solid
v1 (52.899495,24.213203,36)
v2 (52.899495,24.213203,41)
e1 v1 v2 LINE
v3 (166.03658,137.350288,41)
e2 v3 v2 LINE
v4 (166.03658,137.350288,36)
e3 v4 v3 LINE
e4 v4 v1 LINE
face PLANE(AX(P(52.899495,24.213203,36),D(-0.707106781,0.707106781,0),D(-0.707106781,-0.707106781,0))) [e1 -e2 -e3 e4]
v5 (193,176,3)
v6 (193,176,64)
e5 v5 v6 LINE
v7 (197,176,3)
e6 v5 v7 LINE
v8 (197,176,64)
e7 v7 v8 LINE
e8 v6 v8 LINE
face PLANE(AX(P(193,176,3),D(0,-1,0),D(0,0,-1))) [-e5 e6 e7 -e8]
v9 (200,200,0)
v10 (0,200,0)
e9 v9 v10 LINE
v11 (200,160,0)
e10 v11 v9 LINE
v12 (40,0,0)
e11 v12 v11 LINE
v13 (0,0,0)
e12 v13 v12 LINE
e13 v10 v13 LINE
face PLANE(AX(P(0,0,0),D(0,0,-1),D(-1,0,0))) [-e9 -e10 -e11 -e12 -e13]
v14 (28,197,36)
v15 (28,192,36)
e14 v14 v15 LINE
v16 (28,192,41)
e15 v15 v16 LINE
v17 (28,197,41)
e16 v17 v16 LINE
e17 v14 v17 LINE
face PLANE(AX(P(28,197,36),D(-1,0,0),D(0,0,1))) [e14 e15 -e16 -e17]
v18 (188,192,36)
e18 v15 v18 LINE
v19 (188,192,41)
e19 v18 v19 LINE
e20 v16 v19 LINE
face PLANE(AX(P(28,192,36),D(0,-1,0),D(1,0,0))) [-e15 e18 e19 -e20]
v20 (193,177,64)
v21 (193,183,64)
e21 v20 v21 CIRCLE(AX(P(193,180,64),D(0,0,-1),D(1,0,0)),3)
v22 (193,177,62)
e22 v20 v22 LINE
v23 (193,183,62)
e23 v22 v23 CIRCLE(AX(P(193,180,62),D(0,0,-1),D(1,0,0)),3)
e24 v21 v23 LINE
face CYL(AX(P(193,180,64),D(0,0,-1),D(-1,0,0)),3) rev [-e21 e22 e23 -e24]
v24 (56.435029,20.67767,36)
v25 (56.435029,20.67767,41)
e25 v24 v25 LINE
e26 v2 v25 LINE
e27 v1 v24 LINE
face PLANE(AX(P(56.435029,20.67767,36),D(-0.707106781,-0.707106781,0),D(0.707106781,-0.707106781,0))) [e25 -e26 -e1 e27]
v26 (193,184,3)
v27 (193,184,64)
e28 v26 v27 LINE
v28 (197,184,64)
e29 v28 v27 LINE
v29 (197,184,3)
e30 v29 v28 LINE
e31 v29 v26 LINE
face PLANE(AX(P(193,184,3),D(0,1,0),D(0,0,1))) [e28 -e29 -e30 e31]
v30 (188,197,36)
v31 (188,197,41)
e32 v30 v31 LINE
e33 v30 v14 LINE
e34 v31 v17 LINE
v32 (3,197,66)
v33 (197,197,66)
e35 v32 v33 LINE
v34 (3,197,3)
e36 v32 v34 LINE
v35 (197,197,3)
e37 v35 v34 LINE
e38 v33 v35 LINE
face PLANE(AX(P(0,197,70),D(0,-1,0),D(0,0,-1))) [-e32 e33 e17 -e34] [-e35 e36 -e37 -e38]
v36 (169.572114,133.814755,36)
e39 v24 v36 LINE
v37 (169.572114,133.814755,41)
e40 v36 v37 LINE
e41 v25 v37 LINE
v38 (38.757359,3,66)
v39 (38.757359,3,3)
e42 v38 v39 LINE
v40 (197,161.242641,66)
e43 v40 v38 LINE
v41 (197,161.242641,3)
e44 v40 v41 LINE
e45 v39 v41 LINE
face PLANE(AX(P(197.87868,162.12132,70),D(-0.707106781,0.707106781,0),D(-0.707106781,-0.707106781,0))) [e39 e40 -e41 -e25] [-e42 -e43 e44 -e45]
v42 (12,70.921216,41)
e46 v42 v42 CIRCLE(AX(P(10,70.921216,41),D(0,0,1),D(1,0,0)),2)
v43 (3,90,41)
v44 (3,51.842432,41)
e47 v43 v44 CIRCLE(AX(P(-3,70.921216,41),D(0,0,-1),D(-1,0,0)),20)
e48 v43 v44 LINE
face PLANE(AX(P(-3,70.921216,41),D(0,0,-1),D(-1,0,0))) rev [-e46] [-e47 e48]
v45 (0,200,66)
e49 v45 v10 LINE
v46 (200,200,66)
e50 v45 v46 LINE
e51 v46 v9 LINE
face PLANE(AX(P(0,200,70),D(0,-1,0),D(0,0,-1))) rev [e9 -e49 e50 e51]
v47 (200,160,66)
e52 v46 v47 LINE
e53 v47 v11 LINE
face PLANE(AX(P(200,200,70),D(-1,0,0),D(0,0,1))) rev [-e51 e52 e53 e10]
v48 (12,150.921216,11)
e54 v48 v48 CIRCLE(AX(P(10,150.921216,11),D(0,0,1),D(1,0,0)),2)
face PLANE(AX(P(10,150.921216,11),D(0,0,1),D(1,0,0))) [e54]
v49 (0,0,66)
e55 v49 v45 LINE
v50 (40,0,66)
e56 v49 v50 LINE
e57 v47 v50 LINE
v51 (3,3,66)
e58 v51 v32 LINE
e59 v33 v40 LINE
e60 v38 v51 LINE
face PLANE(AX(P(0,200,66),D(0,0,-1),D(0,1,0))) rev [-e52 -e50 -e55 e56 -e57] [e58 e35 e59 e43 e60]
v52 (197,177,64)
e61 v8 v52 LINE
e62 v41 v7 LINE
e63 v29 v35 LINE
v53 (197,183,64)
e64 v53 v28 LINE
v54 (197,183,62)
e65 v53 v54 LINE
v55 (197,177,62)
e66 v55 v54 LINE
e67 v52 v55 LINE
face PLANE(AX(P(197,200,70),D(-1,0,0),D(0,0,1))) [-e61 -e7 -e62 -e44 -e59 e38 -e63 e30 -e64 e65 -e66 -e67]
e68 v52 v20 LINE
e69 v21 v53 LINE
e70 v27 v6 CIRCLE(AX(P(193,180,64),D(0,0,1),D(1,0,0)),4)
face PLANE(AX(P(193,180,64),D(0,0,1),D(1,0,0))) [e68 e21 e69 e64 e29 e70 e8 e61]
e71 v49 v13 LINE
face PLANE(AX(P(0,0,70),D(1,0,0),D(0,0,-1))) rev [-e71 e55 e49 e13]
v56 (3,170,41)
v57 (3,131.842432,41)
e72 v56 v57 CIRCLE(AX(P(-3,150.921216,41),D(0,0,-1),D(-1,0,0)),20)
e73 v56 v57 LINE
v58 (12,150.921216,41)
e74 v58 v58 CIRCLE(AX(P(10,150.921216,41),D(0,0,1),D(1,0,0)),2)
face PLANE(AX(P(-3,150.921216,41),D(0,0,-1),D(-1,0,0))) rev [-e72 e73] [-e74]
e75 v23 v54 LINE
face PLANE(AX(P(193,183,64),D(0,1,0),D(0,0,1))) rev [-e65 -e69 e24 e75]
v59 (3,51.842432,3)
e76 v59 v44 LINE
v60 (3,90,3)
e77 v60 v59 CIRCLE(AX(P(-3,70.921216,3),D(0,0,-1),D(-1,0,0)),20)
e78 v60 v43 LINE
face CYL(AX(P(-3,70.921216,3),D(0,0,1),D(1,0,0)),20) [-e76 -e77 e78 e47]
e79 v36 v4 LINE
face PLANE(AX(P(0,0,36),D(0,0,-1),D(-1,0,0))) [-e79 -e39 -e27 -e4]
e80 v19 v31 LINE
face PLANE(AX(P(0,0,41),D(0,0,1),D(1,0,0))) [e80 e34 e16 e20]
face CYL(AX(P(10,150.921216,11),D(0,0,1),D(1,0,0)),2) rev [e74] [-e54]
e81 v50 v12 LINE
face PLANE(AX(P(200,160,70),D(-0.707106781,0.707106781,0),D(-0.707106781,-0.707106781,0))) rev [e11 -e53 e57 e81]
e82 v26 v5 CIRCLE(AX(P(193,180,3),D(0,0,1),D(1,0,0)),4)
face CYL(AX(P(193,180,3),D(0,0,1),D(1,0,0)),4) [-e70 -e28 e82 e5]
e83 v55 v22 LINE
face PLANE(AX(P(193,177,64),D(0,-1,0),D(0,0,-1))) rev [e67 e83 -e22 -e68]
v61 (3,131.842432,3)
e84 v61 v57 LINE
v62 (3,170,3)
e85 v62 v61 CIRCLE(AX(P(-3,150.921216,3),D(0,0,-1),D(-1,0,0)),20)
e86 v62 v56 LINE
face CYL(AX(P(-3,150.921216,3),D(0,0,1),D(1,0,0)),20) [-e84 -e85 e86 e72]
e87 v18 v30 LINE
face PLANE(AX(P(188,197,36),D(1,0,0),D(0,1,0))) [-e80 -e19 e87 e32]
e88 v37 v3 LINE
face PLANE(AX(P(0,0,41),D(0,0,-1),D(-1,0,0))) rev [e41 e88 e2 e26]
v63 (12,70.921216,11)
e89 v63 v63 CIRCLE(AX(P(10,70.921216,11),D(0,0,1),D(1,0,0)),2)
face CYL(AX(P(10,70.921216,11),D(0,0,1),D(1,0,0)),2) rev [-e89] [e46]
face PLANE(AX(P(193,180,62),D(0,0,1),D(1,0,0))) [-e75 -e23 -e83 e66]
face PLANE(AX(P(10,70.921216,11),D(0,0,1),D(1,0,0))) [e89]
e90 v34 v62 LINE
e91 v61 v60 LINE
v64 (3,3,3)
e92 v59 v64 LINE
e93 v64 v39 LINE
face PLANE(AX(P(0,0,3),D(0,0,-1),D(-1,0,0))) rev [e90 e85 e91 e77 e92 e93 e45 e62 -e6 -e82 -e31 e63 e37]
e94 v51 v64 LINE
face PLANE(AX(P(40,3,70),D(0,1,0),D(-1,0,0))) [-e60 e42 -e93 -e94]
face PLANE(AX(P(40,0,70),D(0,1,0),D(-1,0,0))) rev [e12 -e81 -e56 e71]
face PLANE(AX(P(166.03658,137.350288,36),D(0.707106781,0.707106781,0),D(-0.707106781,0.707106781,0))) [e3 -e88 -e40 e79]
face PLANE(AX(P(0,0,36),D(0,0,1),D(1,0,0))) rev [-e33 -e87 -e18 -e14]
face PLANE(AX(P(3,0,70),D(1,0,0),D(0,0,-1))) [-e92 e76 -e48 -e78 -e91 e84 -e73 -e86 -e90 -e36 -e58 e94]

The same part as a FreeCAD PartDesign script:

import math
import FreeCAD as App
import Part
import Sketcher
Q = App.Units.Quantity


def faces_at(feature, points):
    """Names of the faces that lie closest to the given points."""
    faces = feature.Shape.Faces
    near = lambda p: min(range(len(faces)), key=lambda i: faces[i].distToShape(Part.Vertex(*p))[0])
    return sorted({f"Face{near(p) + 1}" for p in points})


def add_polygon(sketch, points):
    """Adds a closed chain of lines whose ends are joined by coincident constraints."""
    first, n = sketch.GeometryCount, len(points)
    for a, b in zip(points, points[1:] + points[:1]):
        sketch.addGeometry(Part.LineSegment(App.Vector(*a, 0), App.Vector(*b, 0)), False)
    for i in range(n):
        sketch.addConstraint(Sketcher.Constraint("Coincident", first + i, 2, first + (i + 1) % n, 1))

doc = App.newDocument("Part")
body = doc.addObject("PartDesign::Body", "Body")

sketch1 = doc.addObject("Sketcher::SketchObject", "Sketch")
body.addObject(sketch1)
sketch1.AttachmentSupport = (doc.XY_Plane, [""])
sketch1.MapMode = "FlatFace"
add_polygon(sketch1, [(0, 200), (0, 0), (40, 0), (200, 160), (200, 200)])
sketch1.addConstraint(Sketcher.Constraint("Vertical", 0))
sketch1.addConstraint(Sketcher.Constraint("Horizontal", 1))
sketch1.addConstraint(Sketcher.Constraint("Vertical", 3))
sketch1.addConstraint(Sketcher.Constraint("Horizontal", 4))
sketch1.addConstraint(Sketcher.Constraint("Coincident", 0, 2, -1, 1))
sketch1.addConstraint(Sketcher.Constraint("Equal", 4, 0))
sketch1.addConstraint(Sketcher.Constraint("Equal", 1, 3))
sketch1.addConstraint(Sketcher.Constraint("DistanceX", 1, 1, 1, 2, 40.0))
sketch1.addConstraint(Sketcher.Constraint("DistanceX", 4, 2, 4, 1, 200.0))
pad1 = doc.addObject("PartDesign::Pad", "Pad")
body.addObject(pad1)
pad1.Profile = sketch1
pad1.Length = 70
doc.recompute()

thickness = doc.addObject("PartDesign::Thickness", "Thickness")
body.addObject(thickness)
thickness.Base = (pad1, faces_at(pad1, [(100, 100, 70)]))
thickness.Value = 3
thickness.Reversed = True
thickness.Join = "Intersection"

sketch2 = doc.addObject("Sketcher::SketchObject", "Sketch001")
body.addObject(sketch2)
sketch2.AttachmentSupport = (doc.YZ_Plane, [""])
sketch2.MapMode = "FlatFace"
sketch2.AttachmentOffset = App.Placement(App.Vector(0, 0, 200), App.Rotation())
add_polygon(sketch2, [(200, 70), (0, 70), (0, 66), (200, 66)])
sketch2.addConstraint(Sketcher.Constraint("Horizontal", 0))
sketch2.addConstraint(Sketcher.Constraint("Vertical", 1))
sketch2.addConstraint(Sketcher.Constraint("Horizontal", 2))
sketch2.addConstraint(Sketcher.Constraint("Vertical", 3))
sketch2.addConstraint(Sketcher.Constraint("PointOnObject", 0, 2, -2))
sketch2.addConstraint(Sketcher.Constraint("DistanceX", 0, 2, 0, 1, 200.0))
sketch2.addConstraint(Sketcher.Constraint("DistanceY", 1, 2, 1, 1, 4.0))
sketch2.addConstraint(Sketcher.Constraint("DistanceY", -1, 1, 0, 2, 70.0))
pocket1 = doc.addObject("PartDesign::Pocket", "Pocket")
body.addObject(pocket1)
pocket1.Profile = sketch2
pocket1.Type = "ThroughAll"
pocket1.Midplane = True

sketch3 = doc.addObject("Sketcher::SketchObject", "Sketch002")
body.addObject(sketch3)
sketch3.AttachmentSupport = (doc.XY_Plane, [""])
sketch3.MapMode = "FlatFace"
sketch3.AttachmentOffset = App.Placement(App.Vector(0, 0, 41), App.Rotation())
sketch3.addGeometry(Part.LineSegment(App.Vector(3, 170, 0), App.Vector(3, 132, 0)), False)
sketch3.addGeometry(Part.ArcOfCircle(Part.Circle(App.Vector(-3, 151, 0), App.Vector(0, 0, 1), 20), math.radians(-73), math.radians(73)), False)
sketch3.addGeometry(Part.LineSegment(App.Vector(3, 90, 0), App.Vector(3, 52, 0)), False)
sketch3.addGeometry(Part.ArcOfCircle(Part.Circle(App.Vector(-3, 71, 0), App.Vector(0, 0, 1), 20), math.radians(-73), math.radians(73)), False)
sketch3.addConstraint(Sketcher.Constraint("Coincident", 0, 1, 1, 2))
sketch3.addConstraint(Sketcher.Constraint("Coincident", 1, 1, 0, 2))
sketch3.addConstraint(Sketcher.Constraint("Coincident", 2, 1, 3, 2))
sketch3.addConstraint(Sketcher.Constraint("Coincident", 3, 1, 2, 2))
sketch3.addConstraint(Sketcher.Constraint("Vertical", 0))
sketch3.addConstraint(Sketcher.Constraint("Vertical", 2))
sketch3.addConstraint(Sketcher.Constraint("Equal", 1, 3))
sketch3.addConstraint(Sketcher.Constraint("Vertical", 1, 3, 3, 3))
sketch3.addConstraint(Sketcher.Constraint("Vertical", 1, 1, 2, 1))
sketch3.addConstraint(Sketcher.Constraint("Radius", 1, 20.0))
sketch3.addConstraint(Sketcher.Constraint("DistanceX", 1, 3, -1, 1, 3.0))
sketch3.addConstraint(Sketcher.Constraint("DistanceX", -1, 1, 0, 1, 3.0))
sketch3.addConstraint(Sketcher.Constraint("DistanceY", -1, 1, 0, 1, 170.0))
sketch3.addConstraint(Sketcher.Constraint("DistanceY", -1, 1, 2, 1, 90.0))
pad2 = doc.addObject("PartDesign::Pad", "Pad001")
body.addObject(pad2)
pad2.Profile = sketch3
pad2.Length = 38
pad2.Reversed = True

sketch4 = doc.addObject("Sketcher::SketchObject", "Sketch003")
body.addObject(sketch4)
sketch4.AttachmentSupport = (doc.XY_Plane, [""])
sketch4.MapMode = "FlatFace"
sketch4.AttachmentOffset = App.Placement(App.Vector(0, 0, 41), App.Rotation())
sketch4.addGeometry(Part.Circle(App.Vector(10, 150.9, 0), App.Vector(0, 0, 1), 2), False)
sketch4.addGeometry(Part.Circle(App.Vector(10, 70.9, 0), App.Vector(0, 0, 1), 2), False)
sketch4.addConstraint(Sketcher.Constraint("Equal", 0, 1))
sketch4.addConstraint(Sketcher.Constraint("Vertical", 0, 3, 1, 3))
sketch4.addConstraint(Sketcher.Constraint("Diameter", 0, 4.0))
sketch4.addConstraint(Sketcher.Constraint("DistanceX", -1, 1, 0, 3, 10.0))
sketch4.addConstraint(Sketcher.Constraint("DistanceY", 1, 3, 0, 3, 80.0))
sketch4.addConstraint(Sketcher.Constraint("DistanceY", -1, 1, 0, 3, 150.921216))
pocket2 = doc.addObject("PartDesign::Pocket", "Pocket001")
body.addObject(pocket2)
pocket2.Profile = sketch4
pocket2.Length = 30

sketch5 = doc.addObject("Sketcher::SketchObject", "Sketch004")
body.addObject(sketch5)
sketch5.AttachmentSupport = (doc.XY_Plane, [""])
sketch5.MapMode = "FlatFace"
sketch5.AttachmentOffset = App.Placement(App.Vector(0, 0, 41), App.Rotation())
add_polygon(sketch5, [(28, 197), (28, 192), (188, 192), (188, 197)])
add_polygon(sketch5, [(56.4, 20.7), (169.6, 133.8), (166, 137.4), (52.9, 24.2)])
sketch5.addConstraint(Sketcher.Constraint("Vertical", 0))
sketch5.addConstraint(Sketcher.Constraint("Horizontal", 1))
sketch5.addConstraint(Sketcher.Constraint("Vertical", 2))
sketch5.addConstraint(Sketcher.Constraint("Horizontal", 3))
sketch5.addConstraint(Sketcher.Constraint("Perpendicular", 4, 5))
sketch5.addConstraint(Sketcher.Constraint("Perpendicular", 5, 6))
sketch5.addConstraint(Sketcher.Constraint("Perpendicular", 6, 7))
sketch5.addConstraint(Sketcher.Constraint("DistanceX", 1, 1, 1, 2, 160.0))
sketch5.addConstraint(Sketcher.Constraint("DistanceY", 0, 2, 0, 1, 5.0))
sketch5.addConstraint(Sketcher.Constraint("Angle", 4, Q("45 deg")))
sketch5.addConstraint(Sketcher.Constraint("Distance", 4, 160.0))
sketch5.addConstraint(Sketcher.Constraint("Distance", 5, 5.0))
sketch5.addConstraint(Sketcher.Constraint("DistanceX", -1, 1, 0, 2, 28.0))
sketch5.addConstraint(Sketcher.Constraint("DistanceY", -1, 1, 0, 2, 192.0))
sketch5.addConstraint(Sketcher.Constraint("DistanceX", -1, 1, 5, 2, 166.03658))
sketch5.addConstraint(Sketcher.Constraint("DistanceY", -1, 1, 5, 2, 137.350288))
pad3 = doc.addObject("PartDesign::Pad", "Pad002")
body.addObject(pad3)
pad3.Profile = sketch5
pad3.Length = 5
pad3.Reversed = True

sketch6 = doc.addObject("Sketcher::SketchObject", "Sketch005")
body.addObject(sketch6)
sketch6.AttachmentSupport = (doc.XY_Plane, [""])
sketch6.MapMode = "FlatFace"
sketch6.AttachmentOffset = App.Placement(App.Vector(0, 0, 62), App.Rotation())
sketch6.addGeometry(Part.LineSegment(App.Vector(197, 184, 0), App.Vector(193, 184, 0)), False)
sketch6.addGeometry(Part.ArcOfCircle(Part.Circle(App.Vector(193, 180, 0), App.Vector(0, 0, 1), 4), math.radians(90), math.radians(270)), False)
sketch6.addGeometry(Part.LineSegment(App.Vector(193, 176, 0), App.Vector(197, 176, 0)), False)
sketch6.addGeometry(Part.LineSegment(App.Vector(197, 176, 0), App.Vector(197, 184, 0)), False)
sketch6.addConstraint(Sketcher.Constraint("Tangent", 0, 2, 1, 1))
sketch6.addConstraint(Sketcher.Constraint("Tangent", 1, 2, 2, 1))
sketch6.addConstraint(Sketcher.Constraint("Coincident", 2, 2, 3, 1))
sketch6.addConstraint(Sketcher.Constraint("Coincident", 3, 2, 0, 1))
sketch6.addConstraint(Sketcher.Constraint("Horizontal", 0))
sketch6.addConstraint(Sketcher.Constraint("Horizontal", 2))
sketch6.addConstraint(Sketcher.Constraint("Vertical", 3))
sketch6.addConstraint(Sketcher.Constraint("Radius", 1, 4.0))
sketch6.addConstraint(Sketcher.Constraint("DistanceX", 0, 2, 0, 1, 4.0))
sketch6.addConstraint(Sketcher.Constraint("DistanceX", -1, 1, 1, 3, 193.0))
sketch6.addConstraint(Sketcher.Constraint("DistanceY", -1, 1, 1, 3, 180.0))
pad4 = doc.addObject("PartDesign::Pad", "Pad003")
body.addObject(pad4)
pad4.Profile = sketch6
pad4.Length = 62
pad4.Reversed = True

sketch7 = doc.addObject("Sketcher::SketchObject", "Sketch006")
body.addObject(sketch7)
sketch7.AttachmentSupport = (doc.XY_Plane, [""])
sketch7.MapMode = "FlatFace"
sketch7.AttachmentOffset = App.Placement(App.Vector(0, 0, 62), App.Rotation())
sketch7.addGeometry(Part.LineSegment(App.Vector(197, 177, 0), App.Vector(193, 177, 0)), False)
sketch7.addGeometry(Part.ArcOfCircle(Part.Circle(App.Vector(193, 180, 0), App.Vector(0, 0, 1), 3), math.radians(90), math.radians(270)), False)
sketch7.addGeometry(Part.LineSegment(App.Vector(193, 183, 0), App.Vector(197, 183, 0)), False)
sketch7.addGeometry(Part.LineSegment(App.Vector(197, 183, 0), App.Vector(197, 184, 0)), False)
sketch7.addGeometry(Part.LineSegment(App.Vector(197, 184, 0), App.Vector(193, 184, 0)), False)
sketch7.addGeometry(Part.ArcOfCircle(Part.Circle(App.Vector(193, 180, 0), App.Vector(0, 0, 1), 4), math.radians(90), math.radians(270)), False)
sketch7.addGeometry(Part.LineSegment(App.Vector(193, 176, 0), App.Vector(197, 176, 0)), False)
sketch7.addGeometry(Part.LineSegment(App.Vector(197, 176, 0), App.Vector(197, 177, 0)), False)
sketch7.addConstraint(Sketcher.Constraint("Tangent", 0, 2, 1, 2))
sketch7.addConstraint(Sketcher.Constraint("Tangent", 1, 1, 2, 1))
sketch7.addConstraint(Sketcher.Constraint("Coincident", 2, 2, 3, 1))
sketch7.addConstraint(Sketcher.Constraint("Coincident", 3, 2, 4, 1))
sketch7.addConstraint(Sketcher.Constraint("Tangent", 4, 2, 5, 1))
sketch7.addConstraint(Sketcher.Constraint("Tangent", 5, 2, 6, 1))
sketch7.addConstraint(Sketcher.Constraint("Coincident", 6, 2, 7, 1))
sketch7.addConstraint(Sketcher.Constraint("Coincident", 7, 2, 0, 1))
sketch7.addConstraint(Sketcher.Constraint("Horizontal", 0))
sketch7.addConstraint(Sketcher.Constraint("Horizontal", 2))
sketch7.addConstraint(Sketcher.Constraint("Vertical", 3))
sketch7.addConstraint(Sketcher.Constraint("Horizontal", 4))
sketch7.addConstraint(Sketcher.Constraint("Horizontal", 6))
sketch7.addConstraint(Sketcher.Constraint("Vertical", 7))
sketch7.addConstraint(Sketcher.Constraint("Coincident", 5, 3, 1, 3))
sketch7.addConstraint(Sketcher.Constraint("Vertical", 3, 2, 6, 2))
sketch7.addConstraint(Sketcher.Constraint("Radius", 1, 3.0))
sketch7.addConstraint(Sketcher.Constraint("Radius", 5, 4.0))
sketch7.addConstraint(Sketcher.Constraint("DistanceX", 0, 2, 0, 1, 4.0))
sketch7.addConstraint(Sketcher.Constraint("DistanceX", -1, 1, 1, 3, 193.0))
sketch7.addConstraint(Sketcher.Constraint("DistanceY", -1, 1, 1, 3, 180.0))
pad5 = doc.addObject("PartDesign::Pad", "Pad004")
body.addObject(pad5)
pad5.Profile = sketch7
pad5.Length = 2

doc.recompute()
